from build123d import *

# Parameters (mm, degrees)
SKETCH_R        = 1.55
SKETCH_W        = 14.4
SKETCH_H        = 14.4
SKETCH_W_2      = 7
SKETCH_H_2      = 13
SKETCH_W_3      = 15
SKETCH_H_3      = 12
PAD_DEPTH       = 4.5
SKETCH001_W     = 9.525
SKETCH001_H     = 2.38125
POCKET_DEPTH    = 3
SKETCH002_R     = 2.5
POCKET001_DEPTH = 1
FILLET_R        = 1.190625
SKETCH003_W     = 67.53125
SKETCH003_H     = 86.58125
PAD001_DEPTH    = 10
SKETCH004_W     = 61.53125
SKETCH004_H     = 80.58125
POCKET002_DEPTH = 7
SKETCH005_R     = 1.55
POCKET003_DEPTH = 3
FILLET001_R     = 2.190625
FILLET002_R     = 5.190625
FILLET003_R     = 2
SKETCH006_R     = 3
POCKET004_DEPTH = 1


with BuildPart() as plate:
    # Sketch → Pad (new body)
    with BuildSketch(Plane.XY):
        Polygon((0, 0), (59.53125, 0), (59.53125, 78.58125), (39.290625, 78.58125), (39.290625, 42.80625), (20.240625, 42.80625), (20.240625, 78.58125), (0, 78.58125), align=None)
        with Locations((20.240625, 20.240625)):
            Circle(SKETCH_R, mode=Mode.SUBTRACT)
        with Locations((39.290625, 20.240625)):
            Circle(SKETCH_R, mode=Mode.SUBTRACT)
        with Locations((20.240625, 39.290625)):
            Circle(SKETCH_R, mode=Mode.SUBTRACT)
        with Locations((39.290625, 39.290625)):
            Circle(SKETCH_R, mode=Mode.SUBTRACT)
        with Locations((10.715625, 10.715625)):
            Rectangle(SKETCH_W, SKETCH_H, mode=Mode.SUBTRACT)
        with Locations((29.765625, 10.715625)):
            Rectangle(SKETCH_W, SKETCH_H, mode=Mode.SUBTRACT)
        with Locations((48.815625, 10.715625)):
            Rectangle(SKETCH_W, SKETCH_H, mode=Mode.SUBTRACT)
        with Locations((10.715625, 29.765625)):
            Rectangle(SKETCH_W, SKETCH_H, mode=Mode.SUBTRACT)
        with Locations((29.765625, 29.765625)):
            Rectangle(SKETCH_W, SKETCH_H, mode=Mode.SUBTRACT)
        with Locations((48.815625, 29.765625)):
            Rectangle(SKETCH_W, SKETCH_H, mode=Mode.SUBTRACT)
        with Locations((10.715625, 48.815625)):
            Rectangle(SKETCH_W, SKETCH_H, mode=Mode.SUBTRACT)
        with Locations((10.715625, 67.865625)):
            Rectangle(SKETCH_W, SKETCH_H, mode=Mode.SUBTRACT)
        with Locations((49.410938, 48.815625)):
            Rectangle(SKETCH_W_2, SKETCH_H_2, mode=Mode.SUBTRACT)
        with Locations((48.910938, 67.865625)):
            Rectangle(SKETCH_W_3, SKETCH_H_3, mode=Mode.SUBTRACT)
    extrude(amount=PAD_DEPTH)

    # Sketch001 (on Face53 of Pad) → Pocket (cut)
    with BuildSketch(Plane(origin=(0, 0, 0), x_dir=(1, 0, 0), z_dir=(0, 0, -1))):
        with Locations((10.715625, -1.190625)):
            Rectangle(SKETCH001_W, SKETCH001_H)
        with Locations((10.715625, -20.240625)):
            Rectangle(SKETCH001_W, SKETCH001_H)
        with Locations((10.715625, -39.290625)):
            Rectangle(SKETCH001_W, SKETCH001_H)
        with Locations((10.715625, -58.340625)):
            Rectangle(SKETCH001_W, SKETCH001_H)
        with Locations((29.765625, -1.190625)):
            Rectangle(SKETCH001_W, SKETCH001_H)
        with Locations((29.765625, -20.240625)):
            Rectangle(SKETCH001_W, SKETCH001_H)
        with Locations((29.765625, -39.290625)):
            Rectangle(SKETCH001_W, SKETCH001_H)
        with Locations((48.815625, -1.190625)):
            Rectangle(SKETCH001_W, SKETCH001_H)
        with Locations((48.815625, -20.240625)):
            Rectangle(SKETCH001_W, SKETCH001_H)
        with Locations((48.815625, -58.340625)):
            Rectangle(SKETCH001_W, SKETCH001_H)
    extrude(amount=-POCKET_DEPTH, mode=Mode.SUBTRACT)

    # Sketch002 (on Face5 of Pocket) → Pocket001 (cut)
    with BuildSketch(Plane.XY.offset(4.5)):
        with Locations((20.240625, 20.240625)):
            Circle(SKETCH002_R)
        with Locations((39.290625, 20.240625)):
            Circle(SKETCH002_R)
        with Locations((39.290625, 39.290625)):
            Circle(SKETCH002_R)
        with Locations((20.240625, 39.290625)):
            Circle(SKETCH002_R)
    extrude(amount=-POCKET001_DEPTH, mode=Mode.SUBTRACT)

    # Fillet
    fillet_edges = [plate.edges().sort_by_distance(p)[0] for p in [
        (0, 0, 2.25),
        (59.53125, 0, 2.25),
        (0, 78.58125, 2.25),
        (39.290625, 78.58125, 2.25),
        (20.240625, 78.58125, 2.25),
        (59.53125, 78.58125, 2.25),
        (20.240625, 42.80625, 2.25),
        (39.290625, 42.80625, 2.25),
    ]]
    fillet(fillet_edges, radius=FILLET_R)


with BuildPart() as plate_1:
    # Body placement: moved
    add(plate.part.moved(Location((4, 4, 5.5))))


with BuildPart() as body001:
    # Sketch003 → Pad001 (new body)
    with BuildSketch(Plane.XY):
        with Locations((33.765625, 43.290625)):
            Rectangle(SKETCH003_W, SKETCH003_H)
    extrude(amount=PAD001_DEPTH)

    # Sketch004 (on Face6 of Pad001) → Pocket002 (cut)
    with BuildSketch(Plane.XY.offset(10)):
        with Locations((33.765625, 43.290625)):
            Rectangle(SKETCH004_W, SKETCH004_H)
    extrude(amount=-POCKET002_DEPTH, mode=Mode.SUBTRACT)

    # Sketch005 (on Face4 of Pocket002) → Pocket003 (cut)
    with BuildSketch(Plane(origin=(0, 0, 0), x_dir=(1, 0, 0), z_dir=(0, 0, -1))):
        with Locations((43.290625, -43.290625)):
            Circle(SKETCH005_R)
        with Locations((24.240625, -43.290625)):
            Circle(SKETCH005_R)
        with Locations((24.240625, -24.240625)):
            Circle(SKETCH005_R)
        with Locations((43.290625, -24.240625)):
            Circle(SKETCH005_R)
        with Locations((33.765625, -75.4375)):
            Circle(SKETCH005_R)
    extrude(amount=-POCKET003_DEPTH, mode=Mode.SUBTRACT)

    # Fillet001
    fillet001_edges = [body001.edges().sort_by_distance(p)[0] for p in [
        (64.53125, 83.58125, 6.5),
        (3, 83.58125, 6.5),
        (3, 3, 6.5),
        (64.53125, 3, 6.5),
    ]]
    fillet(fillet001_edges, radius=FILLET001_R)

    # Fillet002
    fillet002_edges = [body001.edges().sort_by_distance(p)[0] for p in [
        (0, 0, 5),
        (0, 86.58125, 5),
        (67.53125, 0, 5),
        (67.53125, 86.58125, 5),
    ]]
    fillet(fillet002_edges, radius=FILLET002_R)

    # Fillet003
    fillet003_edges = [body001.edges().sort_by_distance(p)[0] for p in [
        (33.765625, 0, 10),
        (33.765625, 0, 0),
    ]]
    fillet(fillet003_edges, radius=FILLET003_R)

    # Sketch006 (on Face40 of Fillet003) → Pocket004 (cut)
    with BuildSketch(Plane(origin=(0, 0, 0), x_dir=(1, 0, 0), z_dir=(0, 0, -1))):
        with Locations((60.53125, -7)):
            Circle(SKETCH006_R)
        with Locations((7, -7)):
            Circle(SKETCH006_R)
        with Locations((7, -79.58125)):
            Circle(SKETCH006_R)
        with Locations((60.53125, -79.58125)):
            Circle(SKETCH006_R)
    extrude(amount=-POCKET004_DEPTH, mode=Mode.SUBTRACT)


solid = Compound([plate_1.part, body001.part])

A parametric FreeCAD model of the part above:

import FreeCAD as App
import Part
import Sketcher

V = App.Vector
Q = App.Units.Quantity


def edges_at(feature, points):
    """Names of the edges that pass closest to the given points."""
    edges = feature.Shape.Edges
    near = lambda p: min(range(len(edges)), key=lambda i: edges[i].distToShape(Part.Vertex(*p))[0])
    return sorted({f"Edge{near(p) + 1}" for p in points})

doc = App.newDocument("Part")
body = doc.addObject("PartDesign::Body", "Body")

sketch1 = body.newObject("Sketcher::SketchObject", "Sketch")
sketch1.AttachmentSupport = (doc.getObject("XY_Plane"), [""])
sketch1.MapMode = "FlatFace"
sketch1.addGeometry([
    Part.LineSegment(V(0, 0, 0), V(59.53125, 0, 0)),
    Part.LineSegment(V(59.53125, 0, 0), V(59.53125, 78.58125, 0)),
    Part.LineSegment(V(59.53125, 78.58125, 0), V(39.290625, 78.58125, 0)),
    Part.LineSegment(V(39.290625, 78.58125, 0), V(39.290625, 42.80625, 0)),
    Part.LineSegment(V(39.290625, 42.80625, 0), V(20.240625, 42.80625, 0)),
    Part.LineSegment(V(20.240625, 42.80625, 0), V(20.240625, 78.58125, 0)),
    Part.LineSegment(V(20.240625, 78.58125, 0), V(0, 78.58125, 0)),
    Part.LineSegment(V(0, 78.58125, 0), V(0, 0, 0)),
    Part.LineSegment(V(17.915625, 3.515625, 0), V(3.515625, 3.515625, 0)),
    Part.LineSegment(V(3.515625, 3.515625, 0), V(3.515625, 17.915625, 0)),
    Part.LineSegment(V(3.515625, 17.915625, 0), V(17.915625, 17.915625, 0)),
    Part.LineSegment(V(17.915625, 17.915625, 0), V(17.915625, 3.515625, 0)),
    Part.LineSegment(V(36.965625, 3.515625, 0), V(22.565625, 3.515625, 0)),
    Part.LineSegment(V(22.565625, 3.515625, 0), V(22.565625, 17.915625, 0)),
    Part.LineSegment(V(22.565625, 17.915625, 0), V(36.965625, 17.915625, 0)),
    Part.LineSegment(V(36.965625, 17.915625, 0), V(36.965625, 3.515625, 0)),
    Part.Circle(V(20.240625, 20.240625, 0), V(0, 0, 1), 1.55),
    Part.LineSegment(V(17.915625, 22.565625, 0), V(3.515625, 22.565625, 0)),
    Part.LineSegment(V(3.515625, 22.565625, 0), V(3.515625, 36.965625, 0)),
    Part.LineSegment(V(3.515625, 36.965625, 0), V(17.915625, 36.965625, 0)),
    Part.LineSegment(V(17.915625, 36.965625, 0), V(17.915625, 22.565625, 0)),
    Part.LineSegment(V(36.965625, 22.565625, 0), V(22.565625, 22.565625, 0)),
    Part.LineSegment(V(22.565625, 22.565625, 0), V(22.565625, 36.965625, 0)),
    Part.LineSegment(V(22.565625, 36.965625, 0), V(36.965625, 36.965625, 0)),
    Part.LineSegment(V(36.965625, 36.965625, 0), V(36.965625, 22.565625, 0)),
    Part.Circle(V(39.290625, 20.240625, 0), V(0, 0, 1), 1.55),
    Part.LineSegment(V(56.015625, 3.515625, 0), V(41.615625, 3.515625, 0)),
    Part.LineSegment(V(41.615625, 3.515625, 0), V(41.615625, 17.915625, 0)),
    Part.LineSegment(V(41.615625, 17.915625, 0), V(56.015625, 17.915625, 0)),
    Part.LineSegment(V(56.015625, 17.915625, 0), V(56.015625, 3.515625, 0)),
    Part.LineSegment(V(56.015625, 22.565625, 0), V(41.615625, 22.565625, 0)),
    Part.LineSegment(V(41.615625, 22.565625, 0), V(41.615625, 36.965625, 0)),
    Part.LineSegment(V(41.615625, 36.965625, 0), V(56.015625, 36.965625, 0)),
    Part.LineSegment(V(56.015625, 36.965625, 0), V(56.015625, 22.565625, 0)),
    Part.LineSegment(V(17.915625, 41.615625, 0), V(3.515625, 41.615625, 0)),
    Part.LineSegment(V(3.515625, 41.615625, 0), V(3.515625, 56.015625, 0)),
    Part.LineSegment(V(3.515625, 56.015625, 0), V(17.915625, 56.015625, 0)),
    Part.LineSegment(V(17.915625, 56.015625, 0), V(17.915625, 41.615625, 0)),
    Part.Circle(V(20.240625, 39.290625, 0), V(0, 0, 1), 1.55),
    Part.LineSegment(V(17.915625, 60.665625, 0), V(3.515625, 60.665625, 0)),
    Part.LineSegment(V(3.515625, 60.665625, 0), V(3.515625, 75.065625, 0)),
    Part.LineSegment(V(3.515625, 75.065625, 0), V(17.915625, 75.065625, 0)),
    Part.LineSegment(V(17.915625, 75.065625, 0), V(17.915625, 60.665625, 0)),
    Part.Circle(V(39.290625, 39.290625, 0), V(0, 0, 1), 1.55),
    Part.LineSegment(V(52.910938, 42.315625, 0), V(45.910938, 42.315625, 0)),
    Part.LineSegment(V(45.910938, 42.315625, 0), V(45.910938, 55.315625, 0)),
    Part.LineSegment(V(45.910938, 55.315625, 0), V(52.910938, 55.315625, 0)),
    Part.LineSegment(V(52.910938, 55.315625, 0), V(52.910938, 42.315625, 0)),
    Part.LineSegment(V(56.410938, 61.865625, 0), V(41.410938, 61.865625, 0)),
    Part.LineSegment(V(41.410938, 61.865625, 0), V(41.410938, 73.865625, 0)),
    Part.LineSegment(V(41.410938, 73.865625, 0), V(56.410938, 73.865625, 0)),
    Part.LineSegment(V(56.410938, 73.865625, 0), V(56.410938, 61.865625, 0)),
], False)
sketch1.addConstraint([
    Sketcher.Constraint("Coincident", 0, 2, 1, 1),
    Sketcher.Constraint("Coincident", 1, 2, 2, 1),
    Sketcher.Constraint("Coincident", 2, 2, 3, 1),
    Sketcher.Constraint("Coincident", 3, 2, 4, 1),
    Sketcher.Constraint("Coincident", 4, 2, 5, 1),
    Sketcher.Constraint("Coincident", 5, 2, 6, 1),
    Sketcher.Constraint("Coincident", 6, 2, 7, 1),
    Sketcher.Constraint("Coincident", 7, 2, 0, 1),
    Sketcher.Constraint("Coincident", 8, 2, 9, 1),
    Sketcher.Constraint("Coincident", 9, 2, 10, 1),
    Sketcher.Constraint("Coincident", 10, 2, 11, 1),
    Sketcher.Constraint("Coincident", 11, 2, 8, 1),
    Sketcher.Constraint("Coincident", 12, 2, 13, 1),
    Sketcher.Constraint("Coincident", 13, 2, 14, 1),
    Sketcher.Constraint("Coincident", 14, 2, 15, 1),
    Sketcher.Constraint("Coincident", 15, 2, 12, 1),
    Sketcher.Constraint("Coincident", 17, 2, 18, 1),
    Sketcher.Constraint("Coincident", 18, 2, 19, 1),
    Sketcher.Constraint("Coincident", 19, 2, 20, 1),
    Sketcher.Constraint("Coincident", 20, 2, 17, 1),
    Sketcher.Constraint("Coincident", 21, 2, 22, 1),
    Sketcher.Constraint("Coincident", 22, 2, 23, 1),
    Sketcher.Constraint("Coincident", 23, 2, 24, 1),
    Sketcher.Constraint("Coincident", 24, 2, 21, 1),
    Sketcher.Constraint("Coincident", 26, 2, 27, 1),
    Sketcher.Constraint("Coincident", 27, 2, 28, 1),
    Sketcher.Constraint("Coincident", 28, 2, 29, 1),
    Sketcher.Constraint("Coincident", 29, 2, 26, 1),
    Sketcher.Constraint("Coincident", 30, 2, 31, 1),
    Sketcher.Constraint("Coincident", 31, 2, 32, 1),
    Sketcher.Constraint("Coincident", 32, 2, 33, 1),
    Sketcher.Constraint("Coincident", 33, 2, 30, 1),
    Sketcher.Constraint("Coincident", 34, 2, 35, 1),
    Sketcher.Constraint("Coincident", 35, 2, 36, 1),
    Sketcher.Constraint("Coincident", 36, 2, 37, 1),
    Sketcher.Constraint("Coincident", 37, 2, 34, 1),
    Sketcher.Constraint("Coincident", 39, 2, 40, 1),
    Sketcher.Constraint("Coincident", 40, 2, 41, 1),
    Sketcher.Constraint("Coincident", 41, 2, 42, 1),
    Sketcher.Constraint("Coincident", 42, 2, 39, 1),
    Sketcher.Constraint("Coincident", 44, 2, 45, 1),
    Sketcher.Constraint("Coincident", 45, 2, 46, 1),
    Sketcher.Constraint("Coincident", 46, 2, 47, 1),
    Sketcher.Constraint("Coincident", 47, 2, 44, 1),
    Sketcher.Constraint("Coincident", 48, 2, 49, 1),
    Sketcher.Constraint("Coincident", 49, 2, 50, 1),
    Sketcher.Constraint("Coincident", 50, 2, 51, 1),
    Sketcher.Constraint("Coincident", 51, 2, 48, 1),
    Sketcher.Constraint("Horizontal", 0),
    Sketcher.Constraint("Vertical", 1),
    Sketcher.Constraint("Horizontal", 2),
    Sketcher.Constraint("Vertical", 3),
    Sketcher.Constraint("Horizontal", 4),
    Sketcher.Constraint("Vertical", 5),
    Sketcher.Constraint("Horizontal", 6),
    Sketcher.Constraint("Vertical", 7),
    Sketcher.Constraint("Horizontal", 8),
    Sketcher.Constraint("Vertical", 9),
    Sketcher.Constraint("Horizontal", 10),
    Sketcher.Constraint("Vertical", 11),
    Sketcher.Constraint("Horizontal", 12),
    Sketcher.Constraint("Vertical", 13),
    Sketcher.Constraint("Horizontal", 14),
    Sketcher.Constraint("Vertical", 15),
    Sketcher.Constraint("Horizontal", 17),
    Sketcher.Constraint("Vertical", 18),
    Sketcher.Constraint("Horizontal", 19),
    Sketcher.Constraint("Vertical", 20),
    Sketcher.Constraint("Horizontal", 21),
    Sketcher.Constraint("Vertical", 22),
    Sketcher.Constraint("Horizontal", 23),
    Sketcher.Constraint("Vertical", 24),
    Sketcher.Constraint("Horizontal", 26),
    Sketcher.Constraint("Vertical", 27),
    Sketcher.Constraint("Horizontal", 28),
    Sketcher.Constraint("Vertical", 29),
    Sketcher.Constraint("Horizontal", 30),
    Sketcher.Constraint("Vertical", 31),
    Sketcher.Constraint("Horizontal", 32),
    Sketcher.Constraint("Vertical", 33),
    Sketcher.Constraint("Horizontal", 34),
    Sketcher.Constraint("Vertical", 35),
    Sketcher.Constraint("Horizontal", 36),
    Sketcher.Constraint("Vertical", 37),
    Sketcher.Constraint("Horizontal", 39),
    Sketcher.Constraint("Vertical", 40),
    Sketcher.Constraint("Horizontal", 41),
    Sketcher.Constraint("Vertical", 42),
    Sketcher.Constraint("Horizontal", 44),
    Sketcher.Constraint("Vertical", 45),
    Sketcher.Constraint("Horizontal", 46),
    Sketcher.Constraint("Vertical", 47),
    Sketcher.Constraint("Horizontal", 48),
    Sketcher.Constraint("Vertical", 49),
    Sketcher.Constraint("Horizontal", 50),
    Sketcher.Constraint("Vertical", 51),
    Sketcher.Constraint("Coincident", 7, 2, -1, 1),
    Sketcher.Constraint("Equal", 16, 25),
    Sketcher.Constraint("Equal", 25, 38),
    Sketcher.Constraint("Equal", 38, 43),
    Sketcher.Constraint("Horizontal", 16, 3, 25, 3),
    Sketcher.Constraint("Horizontal", 38, 3, 43, 3),
    Sketcher.Constraint("Horizontal", 2, 2, 5, 2),
    Sketcher.Constraint("Horizontal", 11, 2, 12, 2),
    Sketcher.Constraint("Horizontal", 10, 2, 13, 2),
    Sketcher.Constraint("Horizontal", 20, 2, 21, 2),
    Sketcher.Constraint("Horizontal", 19, 2, 22, 2),
    Sketcher.Constraint("Horizontal", 15, 2, 26, 2),
    Sketcher.Constraint("Horizontal", 14, 2, 27, 2),
    Sketcher.Constraint("Horizontal", 24, 2, 30, 2),
    Sketcher.Constraint("Horizontal", 23, 2, 31, 2),
    Sketcher.Constraint("Vertical", 16, 3, 38, 3),
    Sketcher.Constraint("Vertical", 25, 3, 43, 3),
    Sketcher.Constraint("Vertical", 43, 3, 2, 2),
    Sketcher.Constraint("Vertical", 38, 3, 4, 2),
    Sketcher.Constraint("Vertical", 9, 2, 17, 2),
    Sketcher.Constraint("Vertical", 11, 2, 19, 2),
    Sketcher.Constraint("Vertical", 13, 2, 21, 2),
    Sketcher.Constraint("Vertical", 15, 2, 23, 2),
    Sketcher.Constraint("Vertical", 27, 2, 30, 2),
    Sketcher.Constraint("Vertical", 29, 2, 32, 2),
    Sketcher.Constraint("Vertical", 18, 2, 34, 2),
    Sketcher.Constraint("Vertical", 20, 2, 36, 2),
    Sketcher.Constraint("Vertical", 35, 2, 39, 2),
    Sketcher.Constraint("Vertical", 37, 2, 41, 2),
    Sketcher.Constraint("Equal", 2, 6),
    Sketcher.Constraint("Equal", 10, 12),
    Sketcher.Constraint("Equal", 23, 26),
    Sketcher.Constraint("Equal", 41, 9),
    Sketcher.Constraint("Equal", 15, 18),
    Sketcher.Constraint("Equal", 33, 35),
    Sketcher.Constraint("Equal", 37, 40),
    Sketcher.Constraint("Diameter", 16, Q("3.1 mm")),
    Sketcher.Constraint("DistanceX", 44, 2, 44, 1, Q("7 mm")),
    Sketcher.Constraint("DistanceX", 48, 2, 48, 1, Q("15 mm")),
    Sketcher.Constraint("DistanceY", 45, 1, 45, 2, Q("13 mm")),
    Sketcher.Constraint("DistanceY", 49, 1, 49, 2, Q("12 mm")),
    Sketcher.Constraint("DistanceX", 8, 2, 8, 1, Q("14.4 mm")),
    Sketcher.Constraint("DistanceX", 4, 2, 4, 1, Q("19.05 mm")),
    Sketcher.Constraint("DistanceY", 18, 2, 39, 2, Q("23.7 mm")),
    Sketcher.Constraint("DistanceX", 48, 2, 45, 2, Q("4.5 mm")),
    Sketcher.Constraint("DistanceY", 3, 2, 3, 1, Q("35.775 mm")),
    Sketcher.Constraint("DistanceY", 16, 3, 38, 3, Q("19.05 mm")),
    Sketcher.Constraint("DistanceX", 11, 2, 12, 2, Q("4.65 mm")),
    Sketcher.Constraint("DistanceY", 9, 2, 17, 2, Q("4.65 mm")),
    Sketcher.Constraint("DistanceX", 15, 2, 26, 2, Q("4.65 mm")),
    Sketcher.Constraint("DistanceY", 18, 2, 34, 2, Q("4.65 mm")),
    Sketcher.Constraint("DistanceY", 31, 2, 44, 2, Q("5.35 mm")),
    Sketcher.Constraint("DistanceY", 45, 2, 48, 2, Q("6.55 mm")),
    Sketcher.Constraint("DistanceX", 8, 2, 16, 3, Q("16.725 mm")),
    Sketcher.Constraint("DistanceY", 8, 2, 16, 3, Q("16.725 mm")),
    Sketcher.Constraint("DistanceX", 0, 1, 0, 2, Q("59.53125 mm")),
    Sketcher.Constraint("DistanceY", 1, 1, 1, 2, Q("78.58125 mm")),
    Sketcher.Constraint("DistanceX", -1, 1, 44, 2, Q("45.910938 mm")),
    Sketcher.Constraint("DistanceY", -1, 1, 16, 3, Q("20.240625 mm")),
])
pad1 = body.newObject("PartDesign::Pad", "Pad")
pad1.Profile = sketch1
pad1.Length = 4.5

sketch2 = body.newObject("Sketcher::SketchObject", "Sketch001")
sketch2.AttachmentSupport = (doc.getObject("XY_Plane"), [""])
sketch2.MapMode = "FlatFace"
sketch2.addGeometry([
    Part.LineSegment(V(5.953125, 0, 0), V(5.953125, 2.38125, 0)),
    Part.LineSegment(V(5.953125, 2.38125, 0), V(15.478125, 2.38125, 0)),
    Part.LineSegment(V(15.478125, 2.38125, 0), V(15.478125, 0, 0)),
    Part.LineSegment(V(15.478125, 0, 0), V(5.953125, 0, 0)),
    Part.LineSegment(V(5.953125, 19.05, 0), V(5.953125, 21.43125, 0)),
    Part.LineSegment(V(5.953125, 21.43125, 0), V(15.478125, 21.43125, 0)),
    Part.LineSegment(V(15.478125, 21.43125, 0), V(15.478125, 19.05, 0)),
    Part.LineSegment(V(15.478125, 19.05, 0), V(5.953125, 19.05, 0)),
    Part.LineSegment(V(5.953125, 38.1, 0), V(5.953125, 40.48125, 0)),
    Part.LineSegment(V(5.953125, 40.48125, 0), V(15.478125, 40.48125, 0)),
    Part.LineSegment(V(15.478125, 40.48125, 0), V(15.478125, 38.1, 0)),
    Part.LineSegment(V(15.478125, 38.1, 0), V(5.953125, 38.1, 0)),
    Part.LineSegment(V(5.953125, 57.15, 0), V(5.953125, 59.53125, 0)),
    Part.LineSegment(V(5.953125, 59.53125, 0), V(15.478125, 59.53125, 0)),
    Part.LineSegment(V(15.478125, 59.53125, 0), V(15.478125, 57.15, 0)),
    Part.LineSegment(V(15.478125, 57.15, 0), V(5.953125, 57.15, 0)),
    Part.LineSegment(V(25.003125, 0, 0), V(25.003125, 2.38125, 0)),
    Part.LineSegment(V(25.003125, 2.38125, 0), V(34.528125, 2.38125, 0)),
    Part.LineSegment(V(34.528125, 2.38125, 0), V(34.528125, 0, 0)),
    Part.LineSegment(V(34.528125, 0, 0), V(25.003125, 0, 0)),
    Part.LineSegment(V(25.003125, 19.05, 0), V(25.003125, 21.43125, 0)),
    Part.LineSegment(V(25.003125, 21.43125, 0), V(34.528125, 21.43125, 0)),
    Part.LineSegment(V(34.528125, 21.43125, 0), V(34.528125, 19.05, 0)),
    Part.LineSegment(V(34.528125, 19.05, 0), V(25.003125, 19.05, 0)),
    Part.LineSegment(V(25.003125, 38.1, 0), V(25.003125, 40.48125, 0)),
    Part.LineSegment(V(25.003125, 40.48125, 0), V(34.528125, 40.48125, 0)),
    Part.LineSegment(V(34.528125, 40.48125, 0), V(34.528125, 38.1, 0)),
    Part.LineSegment(V(34.528125, 38.1, 0), V(25.003125, 38.1, 0)),
    Part.LineSegment(V(44.053125, 0, 0), V(44.053125, 2.38125, 0)),
    Part.LineSegment(V(44.053125, 2.38125, 0), V(53.578125, 2.38125, 0)),
    Part.LineSegment(V(53.578125, 2.38125, 0), V(53.578125, 0, 0)),
    Part.LineSegment(V(53.578125, 0, 0), V(44.053125, 0, 0)),
    Part.LineSegment(V(44.053125, 19.05, 0), V(44.053125, 21.43125, 0)),
    Part.LineSegment(V(44.053125, 21.43125, 0), V(53.578125, 21.43125, 0)),
    Part.LineSegment(V(53.578125, 21.43125, 0), V(53.578125, 19.05, 0)),
    Part.LineSegment(V(53.578125, 19.05, 0), V(44.053125, 19.05, 0)),
    Part.LineSegment(V(44.053125, 57.15, 0), V(44.053125, 59.53125, 0)),
    Part.LineSegment(V(44.053125, 59.53125, 0), V(53.578125, 59.53125, 0)),
    Part.LineSegment(V(53.578125, 59.53125, 0), V(53.578125, 57.15, 0)),
    Part.LineSegment(V(53.578125, 57.15, 0), V(44.053125, 57.15, 0)),
], False)
sketch2.addConstraint([
    Sketcher.Constraint("Coincident", 0, 2, 1, 1),
    Sketcher.Constraint("Coincident", 1, 2, 2, 1),
    Sketcher.Constraint("Coincident", 2, 2, 3, 1),
    Sketcher.Constraint("Coincident", 3, 2, 0, 1),
    Sketcher.Constraint("Coincident", 4, 2, 5, 1),
    Sketcher.Constraint("Coincident", 5, 2, 6, 1),
    Sketcher.Constraint("Coincident", 6, 2, 7, 1),
    Sketcher.Constraint("Coincident", 7, 2, 4, 1),
    Sketcher.Constraint("Coincident", 8, 2, 9, 1),
    Sketcher.Constraint("Coincident", 9, 2, 10, 1),
    Sketcher.Constraint("Coincident", 10, 2, 11, 1),
    Sketcher.Constraint("Coincident", 11, 2, 8, 1),
    Sketcher.Constraint("Coincident", 12, 2, 13, 1),
    Sketcher.Constraint("Coincident", 13, 2, 14, 1),
    Sketcher.Constraint("Coincident", 14, 2, 15, 1),
    Sketcher.Constraint("Coincident", 15, 2, 12, 1),
    Sketcher.Constraint("Coincident", 16, 2, 17, 1),
    Sketcher.Constraint("Coincident", 17, 2, 18, 1),
    Sketcher.Constraint("Coincident", 18, 2, 19, 1),
    Sketcher.Constraint("Coincident", 19, 2, 16, 1),
    Sketcher.Constraint("Coincident", 20, 2, 21, 1),
    Sketcher.Constraint("Coincident", 21, 2, 22, 1),
    Sketcher.Constraint("Coincident", 22, 2, 23, 1),
    Sketcher.Constraint("Coincident", 23, 2, 20, 1),
    Sketcher.Constraint("Coincident", 24, 2, 25, 1),
    Sketcher.Constraint("Coincident", 25, 2, 26, 1),
    Sketcher.Constraint("Coincident", 26, 2, 27, 1),
    Sketcher.Constraint("Coincident", 27, 2, 24, 1),
    Sketcher.Constraint("Coincident", 28, 2, 29, 1),
    Sketcher.Constraint("Coincident", 29, 2, 30, 1),
    Sketcher.Constraint("Coincident", 30, 2, 31, 1),
    Sketcher.Constraint("Coincident", 31, 2, 28, 1),
    Sketcher.Constraint("Coincident", 32, 2, 33, 1),
    Sketcher.Constraint("Coincident", 33, 2, 34, 1),
    Sketcher.Constraint("Coincident", 34, 2, 35, 1),
    Sketcher.Constraint("Coincident", 35, 2, 32, 1),
    Sketcher.Constraint("Coincident", 36, 2, 37, 1),
    Sketcher.Constraint("Coincident", 37, 2, 38, 1),
    Sketcher.Constraint("Coincident", 38, 2, 39, 1),
    Sketcher.Constraint("Coincident", 39, 2, 36, 1),
    Sketcher.Constraint("Vertical", 0),
    Sketcher.Constraint("Horizontal", 1),
    Sketcher.Constraint("Vertical", 2),
    Sketcher.Constraint("Horizontal", 3),
    Sketcher.Constraint("Vertical", 4),
    Sketcher.Constraint("Horizontal", 5),
    Sketcher.Constraint("Vertical", 6),
    Sketcher.Constraint("Horizontal", 7),
    Sketcher.Constraint("Vertical", 8),
    Sketcher.Constraint("Horizontal", 9),
    Sketcher.Constraint("Vertical", 10),
    Sketcher.Constraint("Horizontal", 11),
    Sketcher.Constraint("Vertical", 12),
    Sketcher.Constraint("Horizontal", 13),
    Sketcher.Constraint("Vertical", 14),
    Sketcher.Constraint("Horizontal", 15),
    Sketcher.Constraint("Vertical", 16),
    Sketcher.Constraint("Horizontal", 17),
    Sketcher.Constraint("Vertical", 18),
    Sketcher.Constraint("Horizontal", 19),
    Sketcher.Constraint("Vertical", 20),
    Sketcher.Constraint("Horizontal", 21),
    Sketcher.Constraint("Vertical", 22),
    Sketcher.Constraint("Horizontal", 23),
    Sketcher.Constraint("Vertical", 24),
    Sketcher.Constraint("Horizontal", 25),
    Sketcher.Constraint("Vertical", 26),
    Sketcher.Constraint("Horizontal", 27),
    Sketcher.Constraint("Vertical", 28),
    Sketcher.Constraint("Horizontal", 29),
    Sketcher.Constraint("Vertical", 30),
    Sketcher.Constraint("Horizontal", 31),
    Sketcher.Constraint("Vertical", 32),
    Sketcher.Constraint("Horizontal", 33),
    Sketcher.Constraint("Vertical", 34),
    Sketcher.Constraint("Horizontal", 35),
    Sketcher.Constraint("Vertical", 36),
    Sketcher.Constraint("Horizontal", 37),
    Sketcher.Constraint("Vertical", 38),
    Sketcher.Constraint("Horizontal", 39),
    Sketcher.Constraint("PointOnObject", 2, 2, -1),
    Sketcher.Constraint("PointOnObject", 18, 2, -1),
    Sketcher.Constraint("PointOnObject", 30, 2, -1),
    Sketcher.Constraint("Horizontal", 1, 2, 16, 2),
    Sketcher.Constraint("Horizontal", 5, 2, 20, 2),
    Sketcher.Constraint("Horizontal", 7, 2, 22, 2),
    Sketcher.Constraint("Horizontal", 9, 2, 24, 2),
    Sketcher.Constraint("Horizontal", 11, 2, 26, 2),
    Sketcher.Constraint("Horizontal", 17, 2, 28, 2),
    Sketcher.Constraint("Horizontal", 21, 2, 32, 2),
    Sketcher.Constraint("Horizontal", 23, 2, 34, 2),
    Sketcher.Constraint("Horizontal", 13, 2, 36, 2),
    Sketcher.Constraint("Horizontal", 15, 2, 38, 2),
    Sketcher.Constraint("Vertical", 3, 2, 4, 2),
    Sketcher.Constraint("Vertical", 2, 2, 5, 2),
    Sketcher.Constraint("Vertical", 7, 2, 8, 2),
    Sketcher.Constraint("Vertical", 6, 2, 9, 2),
    Sketcher.Constraint("Vertical", 11, 2, 12, 2),
    Sketcher.Constraint("Vertical", 10, 2, 13, 2),
    Sketcher.Constraint("Vertical", 19, 2, 20, 2),
    Sketcher.Constraint("Vertical", 18, 2, 21, 2),
    Sketcher.Constraint("Vertical", 23, 2, 24, 2),
    Sketcher.Constraint("Vertical", 22, 2, 25, 2),
    Sketcher.Constraint("Vertical", 31, 2, 32, 2),
    Sketcher.Constraint("Vertical", 30, 2, 33, 2),
    Sketcher.Constraint("Vertical", 35, 2, 36, 2),
    Sketcher.Constraint("Vertical", 34, 2, 37, 2),
    Sketcher.Constraint("Equal", 15, 17),
    Sketcher.Constraint("Equal", 27, 29),
    Sketcher.Constraint("Equal", 2, 4),
    Sketcher.Constraint("Equal", 6, 8),
    Sketcher.Constraint("Equal", 10, 12),
    Sketcher.Constraint("DistanceY", -1, 1, 10, 2, Q("38.1 mm")),
    Sketcher.Constraint("DistanceY", 4, 2, 12, 2, Q("38.1 mm")),
    Sketcher.Constraint("DistanceX", 1, 1, 1, 2, Q("9.525 mm")),
    Sketcher.Constraint("DistanceY", -1, 1, 6, 2, Q("19.05 mm")),
    Sketcher.Constraint("DistanceX", 0, 2, 16, 2, Q("19.05 mm")),
    Sketcher.Constraint("DistanceX", 16, 2, 28, 2, Q("19.05 mm")),
    Sketcher.Constraint("DistanceY", 0, 1, 0, 2, Q("2.38125 mm")),
    Sketcher.Constraint("DistanceX", -1, 1, 0, 2, Q("5.953125 mm")),
])
pocket1 = body.newObject("PartDesign::Pocket", "Pocket")
pocket1.Profile = sketch2
pocket1.Length = 3
pocket1.Reversed = True

sketch3 = body.newObject("Sketcher::SketchObject", "Sketch002")
sketch3.AttachmentSupport = (doc.getObject("XY_Plane"), [""])
sketch3.MapMode = "FlatFace"
sketch3.AttachmentOffset = App.Placement(V(0, 0, 4.5), App.Rotation())
sketch3.addGeometry([
    Part.Circle(V(20.240625, 20.240625, 0), V(0, 0, 1), 2.5),
    Part.Circle(V(39.290625, 20.240625, 0), V(0, 0, 1), 2.5),
    Part.Circle(V(39.290625, 39.290625, 0), V(0, 0, 1), 2.5),
    Part.Circle(V(20.240625, 39.290625, 0), V(0, 0, 1), 2.5),
], False)
sketch3.addConstraint([
    Sketcher.Constraint("Equal", 0, 1),
    Sketcher.Constraint("Equal", 1, 2),
    Sketcher.Constraint("Equal", 2, 3),
    Sketcher.Constraint("Horizontal", 0, 3, 1, 3),
    Sketcher.Constraint("Horizontal", 2, 3, 3, 3),
    Sketcher.Constraint("Vertical", 1, 3, 2, 3),
    Sketcher.Constraint("Vertical", 0, 3, 3, 3),
    Sketcher.Constraint("Diameter", 0, Q("5 mm")),
    Sketcher.Constraint("DistanceX", 0, 3, 1, 3, Q("19.05 mm")),
    Sketcher.Constraint("DistanceY", 1, 3, 2, 3, Q("19.05 mm")),
    Sketcher.Constraint("DistanceX", -1, 1, 0, 3, Q("20.240625 mm")),
    Sketcher.Constraint("DistanceY", -1, 1, 0, 3, Q("20.240625 mm")),
])
pocket2 = body.newObject("PartDesign::Pocket", "Pocket001")
pocket2.Profile = sketch3
pocket2.Length = 1
doc.recompute()

fillet = body.newObject("PartDesign::Fillet", "Fillet")
fillet.Base = (pocket2, edges_at(pocket2, [
    (0, 0, 2.25),
    (59.531, 0, 2.25),
    (0, 78.581, 2.25),
    (39.291, 78.581, 2.25),
    (20.241, 78.581, 2.25),
    (59.531, 78.581, 2.25),
    (20.241, 42.806, 2.25),
    (39.291, 42.806, 2.25),
]))
fillet.Radius = 1.190625
body2 = doc.addObject("PartDesign::Body", "Body001")
doc.recompute()

body.Placement = App.Placement(V(4, 4, 5.5), App.Rotation(V(0, 0, 1), 0))
boolean = body2.newObject("PartDesign::Boolean", "Boolean")
boolean.Type = "Fuse"
boolean.addObjects([body])
body3 = doc.addObject("PartDesign::Body", "Body002")

sketch4 = body3.newObject("Sketcher::SketchObject", "Sketch003")
sketch4.AttachmentSupport = (doc.getObject("XY_Plane002"), [""])
sketch4.MapMode = "FlatFace"
sketch4.addGeometry([
    Part.LineSegment(V(0, 86.58125, 0), V(0, 0, 0)),
    Part.LineSegment(V(0, 0, 0), V(67.53125, 0, 0)),
    Part.LineSegment(V(67.53125, 0, 0), V(67.53125, 86.58125, 0)),
    Part.LineSegment(V(67.53125, 86.58125, 0), V(0, 86.58125, 0)),
], False)
sketch4.addConstraint([
    Sketcher.Constraint("Coincident", 0, 2, 1, 1),
    Sketcher.Constraint("Coincident", 1, 2, 2, 1),
    Sketcher.Constraint("Coincident", 2, 2, 3, 1),
    Sketcher.Constraint("Coincident", 3, 2, 0, 1),
    Sketcher.Constraint("Vertical", 0),
    Sketcher.Constraint("Horizontal", 1),
    Sketcher.Constraint("Vertical", 2),
    Sketcher.Constraint("Horizontal", 3),
    Sketcher.Constraint("Coincident", 0, 2, -1, 1),
    Sketcher.Constraint("DistanceX", 1, 1, 1, 2, Q("67.53125 mm")),
    Sketcher.Constraint("DistanceY", 0, 2, 0, 1, Q("86.58125 mm")),
])
pad2 = body3.newObject("PartDesign::Pad", "Pad001")
pad2.Profile = sketch4
pad2.Length = 10

sketch5 = body3.newObject("Sketcher::SketchObject", "Sketch004")
sketch5.AttachmentSupport = (doc.getObject("XY_Plane002"), [""])
sketch5.MapMode = "FlatFace"
sketch5.AttachmentOffset = App.Placement(V(0, 0, 10), App.Rotation())
sketch5.addGeometry([
    Part.LineSegment(V(3, 83.58125, 0), V(3, 3, 0)),
    Part.LineSegment(V(3, 3, 0), V(64.53125, 3, 0)),
    Part.LineSegment(V(64.53125, 3, 0), V(64.53125, 83.58125, 0)),
    Part.LineSegment(V(64.53125, 83.58125, 0), V(3, 83.58125, 0)),
], False)
sketch5.addConstraint([
    Sketcher.Constraint("Coincident", 0, 2, 1, 1),
    Sketcher.Constraint("Coincident", 1, 2, 2, 1),
    Sketcher.Constraint("Coincident", 2, 2, 3, 1),
    Sketcher.Constraint("Coincident", 3, 2, 0, 1),
    Sketcher.Constraint("Vertical", 0),
    Sketcher.Constraint("Horizontal", 1),
    Sketcher.Constraint("Vertical", 2),
    Sketcher.Constraint("Horizontal", 3),
    Sketcher.Constraint("DistanceX", -1, 1, 0, 2, Q("3 mm")),
    Sketcher.Constraint("DistanceY", -1, 1, 0, 2, Q("3 mm")),
    Sketcher.Constraint("DistanceX", 1, 1, 1, 2, Q("61.53125 mm")),
    Sketcher.Constraint("DistanceY", 0, 2, 0, 1, Q("80.58125 mm")),
])
pocket3 = body3.newObject("PartDesign::Pocket", "Pocket002")
pocket3.Profile = sketch5
pocket3.Length = 7

sketch6 = body3.newObject("Sketcher::SketchObject", "Sketch005")
sketch6.AttachmentSupport = (doc.getObject("XY_Plane002"), [""])
sketch6.MapMode = "FlatFace"
sketch6.addGeometry([
    Part.Circle(V(43.290625, 43.290625, 0), V(0, 0, 1), 1.55),
    Part.Circle(V(24.240625, 43.290625, 0), V(0, 0, 1), 1.55),
    Part.Circle(V(24.240625, 24.240625, 0), V(0, 0, 1), 1.55),
    Part.Circle(V(43.290625, 24.240625, 0), V(0, 0, 1), 1.55),
    Part.Circle(V(33.765625, 75.4375, 0), V(0, 0, 1), 1.55),
], False)
sketch6.addConstraint([
    Sketcher.Constraint("Equal", 0, 1),
    Sketcher.Constraint("Equal", 1, 2),
    Sketcher.Constraint("Equal", 2, 3),
    Sketcher.Constraint("Equal", 3, 4),
    Sketcher.Constraint("Horizontal", 0, 3, 1, 3),
    Sketcher.Constraint("Horizontal", 2, 3, 3, 3),
    Sketcher.Constraint("Vertical", 1, 3, 2, 3),
    Sketcher.Constraint("Vertical", 0, 3, 3, 3),
    Sketcher.Constraint("Diameter", 0, Q("3.1 mm")),
    Sketcher.Constraint("DistanceX", 1, 3, 0, 3, Q("19.05 mm")),
    Sketcher.Constraint("DistanceY", 2, 3, 1, 3, Q("19.05 mm")),
    Sketcher.Constraint("DistanceX", 4, 3, 0, 3, Q("9.525 mm")),
    Sketcher.Constraint("DistanceY", -1, 1, 4, 3, Q("75.4375 mm")),
    Sketcher.Constraint("DistanceX", -1, 1, 0, 3, Q("43.290625 mm")),
    Sketcher.Constraint("DistanceY", -1, 1, 0, 3, Q("43.290625 mm")),
])
pocket4 = body3.newObject("PartDesign::Pocket", "Pocket003")
pocket4.Profile = sketch6
pocket4.Length = 3
pocket4.Reversed = True
doc.recompute()

fillet2 = body3.newObject("PartDesign::Fillet", "Fillet001")
fillet2.Base = (pocket4, edges_at(pocket4, [
    (64.531, 83.581, 6.5),
    (3, 83.581, 6.5),
    (3, 3, 6.5),
    (64.531, 3, 6.5),
]))
fillet2.Radius = 2.190625
doc.recompute()

fillet3 = body3.newObject("PartDesign::Fillet", "Fillet002")
fillet3.Base = (fillet2, edges_at(fillet2, [
    (0, 0, 5),
    (0, 86.581, 5),
    (67.531, 0, 5),
    (67.531, 86.581, 5),
]))
fillet3.Radius = 5.190625
doc.recompute()

fillet4 = body3.newObject("PartDesign::Fillet", "Fillet003")
fillet4.Base = (fillet3, edges_at(fillet3, [(33.766, 0, 10), (33.766, 0, 0)]))
fillet4.Radius = 2

sketch7 = body3.newObject("Sketcher::SketchObject", "Sketch006")
sketch7.AttachmentSupport = (doc.getObject("XY_Plane002"), [""])
sketch7.MapMode = "FlatFace"
sketch7.addGeometry([
    Part.Circle(V(60.53125, 7, 0), V(0, 0, 1), 3),
    Part.Circle(V(7, 7, 0), V(0, 0, 1), 3),
    Part.Circle(V(7, 79.58125, 0), V(0, 0, 1), 3),
    Part.Circle(V(60.53125, 79.58125, 0), V(0, 0, 1), 3),
], False)
sketch7.addConstraint([
    Sketcher.Constraint("Equal", 0, 1),
    Sketcher.Constraint("Equal", 1, 2),
    Sketcher.Constraint("Equal", 2, 3),
    Sketcher.Constraint("Horizontal", 0, 3, 1, 3),
    Sketcher.Constraint("Horizontal", 2, 3, 3, 3),
    Sketcher.Constraint("Vertical", 1, 3, 2, 3),
    Sketcher.Constraint("Vertical", 0, 3, 3, 3),
    Sketcher.Constraint("Diameter", 0, Q("6 mm")),
    Sketcher.Constraint("DistanceY", -1, 1, 0, 3, Q("7 mm")),
    Sketcher.Constraint("DistanceX", -1, 1, 1, 3, Q("7 mm")),
    Sketcher.Constraint("DistanceX", -1, 1, 0, 3, Q("60.53125 mm")),
    Sketcher.Constraint("DistanceY", -1, 1, 2, 3, Q("79.58125 mm")),
])
pocket5 = body3.newObject("PartDesign::Pocket", "Pocket004")
pocket5.Profile = sketch7
pocket5.Length = 1
pocket5.Reversed = True

doc.recompute()
